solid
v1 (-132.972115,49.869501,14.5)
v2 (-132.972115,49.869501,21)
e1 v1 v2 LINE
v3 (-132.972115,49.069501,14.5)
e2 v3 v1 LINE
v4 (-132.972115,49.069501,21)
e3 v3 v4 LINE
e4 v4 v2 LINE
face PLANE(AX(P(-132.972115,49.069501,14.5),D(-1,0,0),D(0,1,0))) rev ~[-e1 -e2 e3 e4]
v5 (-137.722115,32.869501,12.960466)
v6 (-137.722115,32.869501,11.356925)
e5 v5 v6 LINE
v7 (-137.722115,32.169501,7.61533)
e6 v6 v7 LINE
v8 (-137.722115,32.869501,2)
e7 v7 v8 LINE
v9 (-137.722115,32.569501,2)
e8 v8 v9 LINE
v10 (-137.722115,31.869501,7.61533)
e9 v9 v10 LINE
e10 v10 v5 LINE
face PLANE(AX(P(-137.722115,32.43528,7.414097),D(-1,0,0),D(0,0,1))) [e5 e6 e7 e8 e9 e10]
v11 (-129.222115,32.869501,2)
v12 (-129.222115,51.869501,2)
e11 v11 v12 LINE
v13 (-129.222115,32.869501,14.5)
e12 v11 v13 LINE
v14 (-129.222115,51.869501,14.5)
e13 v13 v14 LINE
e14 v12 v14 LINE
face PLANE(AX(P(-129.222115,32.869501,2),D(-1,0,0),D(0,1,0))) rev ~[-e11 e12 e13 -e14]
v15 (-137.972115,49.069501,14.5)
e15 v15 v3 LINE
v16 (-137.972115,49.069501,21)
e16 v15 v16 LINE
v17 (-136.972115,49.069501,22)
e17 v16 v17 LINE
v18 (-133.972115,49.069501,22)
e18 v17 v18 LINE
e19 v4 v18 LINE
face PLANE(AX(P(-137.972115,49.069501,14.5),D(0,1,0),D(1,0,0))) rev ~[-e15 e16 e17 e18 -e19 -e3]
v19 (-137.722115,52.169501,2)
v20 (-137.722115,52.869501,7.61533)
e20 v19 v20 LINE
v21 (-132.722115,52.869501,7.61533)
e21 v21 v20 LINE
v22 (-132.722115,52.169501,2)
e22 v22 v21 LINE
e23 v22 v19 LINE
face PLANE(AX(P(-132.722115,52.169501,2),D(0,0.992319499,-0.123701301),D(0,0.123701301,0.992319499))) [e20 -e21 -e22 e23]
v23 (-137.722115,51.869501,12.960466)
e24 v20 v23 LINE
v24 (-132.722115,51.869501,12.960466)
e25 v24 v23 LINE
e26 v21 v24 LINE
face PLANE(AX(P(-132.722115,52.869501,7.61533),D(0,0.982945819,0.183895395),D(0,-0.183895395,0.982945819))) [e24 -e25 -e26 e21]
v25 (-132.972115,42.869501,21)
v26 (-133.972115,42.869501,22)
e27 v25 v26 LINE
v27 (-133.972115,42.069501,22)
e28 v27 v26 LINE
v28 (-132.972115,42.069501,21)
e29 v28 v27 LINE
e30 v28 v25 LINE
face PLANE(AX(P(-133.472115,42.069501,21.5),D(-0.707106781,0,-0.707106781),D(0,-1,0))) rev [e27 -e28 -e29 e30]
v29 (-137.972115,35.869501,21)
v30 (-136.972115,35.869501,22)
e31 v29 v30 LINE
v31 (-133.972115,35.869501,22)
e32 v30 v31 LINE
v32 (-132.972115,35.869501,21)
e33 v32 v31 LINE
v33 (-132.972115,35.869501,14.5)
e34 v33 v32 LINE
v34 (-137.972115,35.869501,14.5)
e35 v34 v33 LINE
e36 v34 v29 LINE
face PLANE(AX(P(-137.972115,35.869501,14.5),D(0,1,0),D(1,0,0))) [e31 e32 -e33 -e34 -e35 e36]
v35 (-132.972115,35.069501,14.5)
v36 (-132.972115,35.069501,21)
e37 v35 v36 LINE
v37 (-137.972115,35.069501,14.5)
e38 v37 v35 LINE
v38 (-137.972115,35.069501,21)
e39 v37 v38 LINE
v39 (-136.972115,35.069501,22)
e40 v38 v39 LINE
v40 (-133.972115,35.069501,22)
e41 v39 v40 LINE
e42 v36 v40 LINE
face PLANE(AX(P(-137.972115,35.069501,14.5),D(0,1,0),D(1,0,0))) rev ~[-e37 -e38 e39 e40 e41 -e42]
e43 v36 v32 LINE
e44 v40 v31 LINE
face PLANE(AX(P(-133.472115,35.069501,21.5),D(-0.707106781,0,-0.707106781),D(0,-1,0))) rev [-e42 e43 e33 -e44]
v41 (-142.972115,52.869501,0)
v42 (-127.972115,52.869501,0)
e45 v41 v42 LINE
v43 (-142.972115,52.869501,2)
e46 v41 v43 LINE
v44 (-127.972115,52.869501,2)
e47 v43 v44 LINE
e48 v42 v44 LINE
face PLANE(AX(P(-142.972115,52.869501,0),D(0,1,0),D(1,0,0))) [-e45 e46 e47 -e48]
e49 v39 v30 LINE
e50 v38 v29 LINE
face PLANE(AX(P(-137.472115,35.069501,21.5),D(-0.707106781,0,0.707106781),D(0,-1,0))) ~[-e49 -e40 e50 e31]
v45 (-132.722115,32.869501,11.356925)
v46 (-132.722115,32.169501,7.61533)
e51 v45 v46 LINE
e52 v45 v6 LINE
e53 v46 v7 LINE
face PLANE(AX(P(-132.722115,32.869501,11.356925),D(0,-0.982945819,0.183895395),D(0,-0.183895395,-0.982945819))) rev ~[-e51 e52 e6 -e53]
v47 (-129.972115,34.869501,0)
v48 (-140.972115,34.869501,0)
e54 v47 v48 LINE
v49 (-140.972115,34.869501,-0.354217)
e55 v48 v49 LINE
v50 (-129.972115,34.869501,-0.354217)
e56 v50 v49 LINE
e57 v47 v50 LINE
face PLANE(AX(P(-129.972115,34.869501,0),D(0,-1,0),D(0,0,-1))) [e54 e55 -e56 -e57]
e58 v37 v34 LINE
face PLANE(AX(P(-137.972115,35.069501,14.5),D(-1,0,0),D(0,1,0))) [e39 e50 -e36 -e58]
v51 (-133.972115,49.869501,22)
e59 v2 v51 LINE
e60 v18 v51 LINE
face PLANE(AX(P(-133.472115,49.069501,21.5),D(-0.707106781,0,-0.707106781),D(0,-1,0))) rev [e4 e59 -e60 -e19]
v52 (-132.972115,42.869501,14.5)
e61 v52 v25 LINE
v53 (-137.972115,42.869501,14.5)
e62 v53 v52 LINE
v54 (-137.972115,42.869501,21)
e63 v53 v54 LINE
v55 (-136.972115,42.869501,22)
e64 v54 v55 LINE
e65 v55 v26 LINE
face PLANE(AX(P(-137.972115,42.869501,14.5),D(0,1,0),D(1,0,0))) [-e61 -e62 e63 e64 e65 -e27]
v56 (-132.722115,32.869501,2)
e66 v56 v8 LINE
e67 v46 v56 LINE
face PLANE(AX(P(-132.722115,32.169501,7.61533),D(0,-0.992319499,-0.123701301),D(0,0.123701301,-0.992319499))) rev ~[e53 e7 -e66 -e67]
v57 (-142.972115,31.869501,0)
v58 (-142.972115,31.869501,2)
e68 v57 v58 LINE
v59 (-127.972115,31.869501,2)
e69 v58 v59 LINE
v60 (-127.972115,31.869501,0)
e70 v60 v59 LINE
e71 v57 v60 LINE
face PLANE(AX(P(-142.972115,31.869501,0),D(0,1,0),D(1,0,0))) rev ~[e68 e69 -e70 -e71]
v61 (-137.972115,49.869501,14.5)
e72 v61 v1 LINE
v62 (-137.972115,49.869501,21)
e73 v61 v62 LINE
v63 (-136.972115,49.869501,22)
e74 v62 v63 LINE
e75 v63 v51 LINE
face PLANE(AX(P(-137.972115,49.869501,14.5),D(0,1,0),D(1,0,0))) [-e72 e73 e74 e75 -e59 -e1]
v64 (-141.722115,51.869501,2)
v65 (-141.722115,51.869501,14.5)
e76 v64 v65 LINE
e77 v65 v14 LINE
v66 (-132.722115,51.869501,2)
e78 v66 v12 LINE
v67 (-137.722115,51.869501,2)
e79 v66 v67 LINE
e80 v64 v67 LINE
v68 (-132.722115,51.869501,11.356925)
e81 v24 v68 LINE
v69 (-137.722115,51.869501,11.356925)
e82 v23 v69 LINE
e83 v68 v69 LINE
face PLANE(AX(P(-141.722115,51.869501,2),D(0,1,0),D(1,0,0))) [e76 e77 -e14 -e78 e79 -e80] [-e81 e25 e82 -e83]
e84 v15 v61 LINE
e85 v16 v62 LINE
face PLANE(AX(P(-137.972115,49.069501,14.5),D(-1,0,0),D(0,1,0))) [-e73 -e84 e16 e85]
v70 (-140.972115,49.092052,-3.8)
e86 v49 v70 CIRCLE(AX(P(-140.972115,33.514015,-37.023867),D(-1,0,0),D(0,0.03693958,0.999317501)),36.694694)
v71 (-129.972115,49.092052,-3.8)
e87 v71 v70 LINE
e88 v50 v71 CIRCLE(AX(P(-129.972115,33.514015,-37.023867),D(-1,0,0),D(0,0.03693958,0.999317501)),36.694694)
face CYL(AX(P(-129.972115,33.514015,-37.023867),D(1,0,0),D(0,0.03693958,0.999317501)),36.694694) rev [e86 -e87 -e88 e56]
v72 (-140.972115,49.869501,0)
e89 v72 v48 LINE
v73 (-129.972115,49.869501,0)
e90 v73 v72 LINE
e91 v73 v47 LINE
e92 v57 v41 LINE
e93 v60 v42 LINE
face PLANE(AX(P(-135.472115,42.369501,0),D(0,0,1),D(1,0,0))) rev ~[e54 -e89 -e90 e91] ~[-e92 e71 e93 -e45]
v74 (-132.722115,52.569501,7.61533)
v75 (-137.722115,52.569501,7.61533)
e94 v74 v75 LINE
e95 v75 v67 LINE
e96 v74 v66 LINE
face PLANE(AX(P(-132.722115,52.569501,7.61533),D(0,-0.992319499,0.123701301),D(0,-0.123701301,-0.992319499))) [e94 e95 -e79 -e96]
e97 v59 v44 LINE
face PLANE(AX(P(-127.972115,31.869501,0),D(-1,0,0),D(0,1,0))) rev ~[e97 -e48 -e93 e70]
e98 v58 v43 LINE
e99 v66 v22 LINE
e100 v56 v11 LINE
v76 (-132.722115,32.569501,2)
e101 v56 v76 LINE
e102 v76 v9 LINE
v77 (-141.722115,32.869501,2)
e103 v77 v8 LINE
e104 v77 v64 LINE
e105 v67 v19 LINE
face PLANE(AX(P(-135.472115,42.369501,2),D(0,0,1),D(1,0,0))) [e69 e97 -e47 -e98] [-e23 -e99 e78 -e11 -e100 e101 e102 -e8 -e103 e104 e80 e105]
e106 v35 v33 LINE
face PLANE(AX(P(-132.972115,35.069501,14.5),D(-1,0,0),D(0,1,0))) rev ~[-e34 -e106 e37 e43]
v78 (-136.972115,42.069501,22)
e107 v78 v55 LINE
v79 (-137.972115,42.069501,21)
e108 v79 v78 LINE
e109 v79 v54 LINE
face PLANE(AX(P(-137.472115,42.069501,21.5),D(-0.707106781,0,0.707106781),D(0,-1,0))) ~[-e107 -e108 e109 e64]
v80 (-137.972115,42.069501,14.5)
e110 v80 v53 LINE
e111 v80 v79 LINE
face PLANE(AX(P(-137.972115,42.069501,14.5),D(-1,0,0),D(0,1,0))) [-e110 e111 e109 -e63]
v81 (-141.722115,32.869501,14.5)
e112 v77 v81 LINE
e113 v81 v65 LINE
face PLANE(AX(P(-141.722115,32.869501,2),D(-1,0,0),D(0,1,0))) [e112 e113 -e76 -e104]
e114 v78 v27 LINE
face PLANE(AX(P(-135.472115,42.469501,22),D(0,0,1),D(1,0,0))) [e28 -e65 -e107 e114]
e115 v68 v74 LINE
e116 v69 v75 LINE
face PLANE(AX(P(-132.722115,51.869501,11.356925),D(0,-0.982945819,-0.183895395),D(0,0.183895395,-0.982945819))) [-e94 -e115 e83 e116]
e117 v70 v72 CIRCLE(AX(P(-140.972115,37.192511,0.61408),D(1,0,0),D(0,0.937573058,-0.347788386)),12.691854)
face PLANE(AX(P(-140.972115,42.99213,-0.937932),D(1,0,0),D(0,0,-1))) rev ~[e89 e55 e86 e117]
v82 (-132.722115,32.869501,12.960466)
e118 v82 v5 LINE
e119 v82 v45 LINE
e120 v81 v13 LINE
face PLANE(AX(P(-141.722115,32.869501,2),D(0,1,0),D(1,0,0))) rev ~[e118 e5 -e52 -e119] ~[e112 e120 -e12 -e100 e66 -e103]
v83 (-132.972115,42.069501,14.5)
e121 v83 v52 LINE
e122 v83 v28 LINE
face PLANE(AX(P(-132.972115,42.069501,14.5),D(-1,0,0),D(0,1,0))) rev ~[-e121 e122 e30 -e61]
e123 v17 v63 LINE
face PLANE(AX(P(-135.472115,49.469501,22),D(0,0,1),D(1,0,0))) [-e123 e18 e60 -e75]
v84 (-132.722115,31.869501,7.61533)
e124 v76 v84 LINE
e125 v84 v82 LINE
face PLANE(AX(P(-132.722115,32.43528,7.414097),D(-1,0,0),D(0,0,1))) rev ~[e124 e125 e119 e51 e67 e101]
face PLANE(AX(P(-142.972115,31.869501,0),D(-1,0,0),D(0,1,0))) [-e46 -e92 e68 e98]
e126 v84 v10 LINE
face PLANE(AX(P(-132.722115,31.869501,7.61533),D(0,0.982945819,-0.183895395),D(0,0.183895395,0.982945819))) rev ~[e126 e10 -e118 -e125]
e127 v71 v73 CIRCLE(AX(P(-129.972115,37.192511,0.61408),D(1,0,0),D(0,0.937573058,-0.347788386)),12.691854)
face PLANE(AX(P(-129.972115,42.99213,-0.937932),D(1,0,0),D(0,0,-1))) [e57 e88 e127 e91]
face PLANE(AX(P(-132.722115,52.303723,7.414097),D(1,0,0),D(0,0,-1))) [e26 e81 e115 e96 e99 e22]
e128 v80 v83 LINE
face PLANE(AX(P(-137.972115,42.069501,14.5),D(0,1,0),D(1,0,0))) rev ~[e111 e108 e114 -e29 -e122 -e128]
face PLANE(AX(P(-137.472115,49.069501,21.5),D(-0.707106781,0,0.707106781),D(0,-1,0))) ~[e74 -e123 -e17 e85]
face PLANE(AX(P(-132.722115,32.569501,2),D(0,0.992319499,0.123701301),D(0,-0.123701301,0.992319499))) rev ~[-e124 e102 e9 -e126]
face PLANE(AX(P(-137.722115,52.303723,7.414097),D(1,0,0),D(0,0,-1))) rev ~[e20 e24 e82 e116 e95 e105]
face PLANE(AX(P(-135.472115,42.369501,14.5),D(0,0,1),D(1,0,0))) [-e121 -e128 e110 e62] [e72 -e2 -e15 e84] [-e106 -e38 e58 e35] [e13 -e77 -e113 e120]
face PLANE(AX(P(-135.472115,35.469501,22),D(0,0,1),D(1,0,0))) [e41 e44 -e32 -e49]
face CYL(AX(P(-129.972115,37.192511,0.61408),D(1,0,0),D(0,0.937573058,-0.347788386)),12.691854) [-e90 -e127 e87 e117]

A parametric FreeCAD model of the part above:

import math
import FreeCAD as App
import Part
import Sketcher

V = App.Vector
Q = App.Units.Quantity


def edges_at(feature, points):
    """Names of the edges that pass closest to the given points."""
    edges = feature.Shape.Edges
    near = lambda p: min(range(len(edges)), key=lambda i: edges[i].distToShape(Part.Vertex(*p))[0])
    return sorted({f"Edge{near(p) + 1}" for p in points})


def add_polygon(sketch, points):
    """Adds a closed chain of lines whose ends are joined by coincident constraints."""
    first, n = sketch.GeometryCount, len(points)
    for a, b in zip(points, points[1:] + points[:1]):
        sketch.addGeometry(Part.LineSegment(App.Vector(*a, 0), App.Vector(*b, 0)), False)
    for i in range(n):
        sketch.addConstraint(Sketcher.Constraint("Coincident", first + i, 2, first + (i + 1) % n, 1))

doc = App.newDocument("Part")
body = doc.addObject("PartDesign::Body", "Body")

sketch1 = body.newObject("Sketcher::SketchObject", "Sketch")
sketch1.AttachmentSupport = (doc.getObject("XY_Plane"), [""])
sketch1.MapMode = "FlatFace"
add_polygon(sketch1, [(-142.972115, 52.869501), (-142.972115, 31.869501), (-127.972115, 31.869501), (-127.972115, 52.869501)])
sketch1.addConstraint(Sketcher.Constraint("Vertical", 0))
sketch1.addConstraint(Sketcher.Constraint("Horizontal", 1))
sketch1.addConstraint(Sketcher.Constraint("Vertical", 2))
sketch1.addConstraint(Sketcher.Constraint("Horizontal", 3))
sketch1.addConstraint(Sketcher.Constraint("DistanceX", 1, 1, 1, 2, Q("15 mm")))
sketch1.addConstraint(Sketcher.Constraint("DistanceY", 0, 2, 0, 1, Q("21 mm")))
sketch1.addConstraint(Sketcher.Constraint("DistanceY", -1, 1, 0, 2, Q("31.869501 mm")))
sketch1.addConstraint(Sketcher.Constraint("DistanceX", 0, 2, -1, 1, Q("142.972115 mm")))
pad1 = body.newObject("PartDesign::Pad", "Pad")
pad1.Profile = sketch1
pad1.Length = 2

sketch2 = body.newObject("Sketcher::SketchObject", "Sketch001")
sketch2.AttachmentSupport = (doc.getObject("XY_Plane"), [""])
sketch2.MapMode = "FlatFace"
sketch2.AttachmentOffset = App.Placement(V(0, 0, 2), App.Rotation())
add_polygon(sketch2, [(-141.722115, 51.869501), (-141.722115, 32.869501), (-129.222115, 32.869501), (-129.222115, 51.869501)])
sketch2.addConstraint(Sketcher.Constraint("Vertical", 0))
sketch2.addConstraint(Sketcher.Constraint("Horizontal", 1))
sketch2.addConstraint(Sketcher.Constraint("Vertical", 2))
sketch2.addConstraint(Sketcher.Constraint("Horizontal", 3))
sketch2.addConstraint(Sketcher.Constraint("DistanceY", 0, 2, 0, 1, Q("19 mm")))
sketch2.addConstraint(Sketcher.Constraint("DistanceX", 1, 1, 1, 2, Q("12.5 mm")))
sketch2.addConstraint(Sketcher.Constraint("DistanceY", -1, 1, 0, 2, Q("32.869501 mm")))
sketch2.addConstraint(Sketcher.Constraint("DistanceX", 0, 2, -1, 1, Q("141.722115 mm")))
pad2 = body.newObject("PartDesign::Pad", "Pad001")
pad2.Profile = sketch2
pad2.Length = 12.5

sketch3 = body.newObject("Sketcher::SketchObject", "Sketch002")
sketch3.AttachmentSupport = (doc.getObject("XY_Plane"), [""])
sketch3.MapMode = "FlatFace"
sketch3.AttachmentOffset = App.Placement(V(0, 0, 14.5), App.Rotation())
add_polygon(sketch3, [(-137.972115, 49.869501), (-137.972115, 49.069501), (-132.972115, 49.069501), (-132.972115, 49.869501)])
add_polygon(sketch3, [(-137.972115, 42.869501), (-137.972115, 42.069501), (-132.972115, 42.069501), (-132.972115, 42.869501)])
add_polygon(sketch3, [(-137.972115, 35.869501), (-137.972115, 35.069501), (-132.972115, 35.069501), (-132.972115, 35.869501)])
sketch3.addConstraint(Sketcher.Constraint("Vertical", 0))
sketch3.addConstraint(Sketcher.Constraint("Horizontal", 1))
sketch3.addConstraint(Sketcher.Constraint("Vertical", 2))
sketch3.addConstraint(Sketcher.Constraint("Horizontal", 3))
sketch3.addConstraint(Sketcher.Constraint("Vertical", 4))
sketch3.addConstraint(Sketcher.Constraint("Horizontal", 5))
sketch3.addConstraint(Sketcher.Constraint("Vertical", 6))
sketch3.addConstraint(Sketcher.Constraint("Horizontal", 7))
sketch3.addConstraint(Sketcher.Constraint("Vertical", 8))
sketch3.addConstraint(Sketcher.Constraint("Horizontal", 9))
sketch3.addConstraint(Sketcher.Constraint("Vertical", 10))
sketch3.addConstraint(Sketcher.Constraint("Horizontal", 11))
sketch3.addConstraint(Sketcher.Constraint("Vertical", 3, 2, 4, 2))
sketch3.addConstraint(Sketcher.Constraint("Vertical", 2, 2, 5, 2))
sketch3.addConstraint(Sketcher.Constraint("Vertical", 7, 2, 8, 2))
sketch3.addConstraint(Sketcher.Constraint("Vertical", 6, 2, 9, 2))
sketch3.addConstraint(Sketcher.Constraint("Equal", 2, 4))
sketch3.addConstraint(Sketcher.Constraint("Equal", 6, 8))
sketch3.addConstraint(Sketcher.Constraint("DistanceX", 1, 1, 1, 2, Q("5 mm")))
sketch3.addConstraint(Sketcher.Constraint("DistanceY", 0, 2, 0, 1, Q("0.8 mm")))
sketch3.addConstraint(Sketcher.Constraint("DistanceY", 4, 2, 0, 2, Q("7 mm")))
sketch3.addConstraint(Sketcher.Constraint("DistanceY", 8, 2, 4, 2, Q("7 mm")))
sketch3.addConstraint(Sketcher.Constraint("DistanceY", -1, 1, 0, 2, Q("49.069501 mm")))
sketch3.addConstraint(Sketcher.Constraint("DistanceX", 0, 2, -1, 1, Q("137.972115 mm")))
pad3 = body.newObject("PartDesign::Pad", "Pad002")
pad3.Profile = sketch3
pad3.Length = 7.5
doc.recompute()

chamfer = body.newObject("PartDesign::Chamfer", "Chamfer")
chamfer.Base = (pad3, edges_at(pad3, [
    (-132.972, 49.47, 22),
    (-137.972, 49.47, 22),
    (-132.972, 42.47, 22),
    (-137.972, 42.47, 22),
    (-132.972, 35.47, 22),
    (-137.972, 35.47, 22),
]))
chamfer.Size = 1

sketch4 = body.newObject("Sketcher::SketchObject", "Sketch003")
sketch4.AttachmentSupport = (doc.getObject("YZ_Plane"), [""])
sketch4.MapMode = "FlatFace"
sketch4.AttachmentOffset = App.Placement(V(0, 0, -129.972115), App.Rotation())
sketch4.addGeometry(Part.LineSegment(V(49.869501, 0, 0), V(34.869501, 0, 0)), False)
sketch4.addGeometry(Part.LineSegment(V(34.869501, 0, 0), V(34.869501, -0.354217, 0)), False)
sketch4.addGeometry(Part.ArcOfCircle(Part.Circle(V(33.514015, -37.023867, 0), V(0, 0, 1), 36.694694), math.radians(64.879015), math.radians(87.883036)), False)
sketch4.addGeometry(Part.ArcOfCircle(Part.Circle(V(37.192511, 0.61408, 0), V(0, 0, 1), 12.691854), math.radians(-20.352102), math.radians(-2.773268)), False)
sketch4.addConstraint(Sketcher.Constraint("Coincident", 0, 2, 1, 1))
sketch4.addConstraint(Sketcher.Constraint("Coincident", 1, 2, 2, 2))
sketch4.addConstraint(Sketcher.Constraint("Coincident", 2, 1, 3, 1))
sketch4.addConstraint(Sketcher.Constraint("Coincident", 3, 2, 0, 1))
sketch4.addConstraint(Sketcher.Constraint("Horizontal", 0))
sketch4.addConstraint(Sketcher.Constraint("Vertical", 1))
sketch4.addConstraint(Sketcher.Constraint("PointOnObject", 0, 2, -1))
sketch4.addConstraint(Sketcher.Constraint("DistanceX", 0, 2, 0, 1, Q("15 mm")))
sketch4.addConstraint(Sketcher.Constraint("DistanceY", 2, 1, -1, 1, Q("3.8 mm")))
sketch4.addConstraint(Sketcher.Constraint("Radius", 2, Q("36.694694 mm")))
sketch4.addConstraint(Sketcher.Constraint("Radius", 3, Q("12.691854 mm")))
sketch4.addConstraint(Sketcher.Constraint("DistanceX", -1, 1, 0, 2, Q("34.869501 mm")))
sketch4.addConstraint(Sketcher.Constraint("DistanceY", 1, 2, 1, 1, Q("0.354217 mm")))
sketch4.addConstraint(Sketcher.Constraint("DistanceX", -1, 1, 3, 3, Q("37.192511 mm")))
pad4 = body.newObject("PartDesign::Pad", "Pad003")
pad4.Profile = sketch4
pad4.Length = 11
pad4.Reversed = True

sketch5 = body.newObject("Sketcher::SketchObject", "Sketch004")
sketch5.AttachmentSupport = (doc.getObject("YZ_Plane"), [""])
sketch5.MapMode = "FlatFace"
sketch5.AttachmentOffset = App.Placement(V(0, 0, -132.722115), App.Rotation())
add_polygon(sketch5, [(51.869501, 2), (52.169501, 2), (52.869501, 7.61533), (51.869501, 12.960466), (51.869501, 11.356925), (52.569501, 7.61533)])
add_polygon(sketch5, [(32.869501, 11.356925), (32.869501, 12.960466), (31.869501, 7.61533), (32.569501, 2), (32.869501, 2), (32.169501, 7.61533)])
sketch5.addConstraint(Sketcher.Constraint("Horizontal", 0))
sketch5.addConstraint(Sketcher.Constraint("Vertical", 3))
sketch5.addConstraint(Sketcher.Constraint("Vertical", 6))
sketch5.addConstraint(Sketcher.Constraint("Horizontal", 9))
sketch5.addConstraint(Sketcher.Constraint("Parallel", 2, 4))
sketch5.addConstraint(Sketcher.Constraint("Parallel", 1, 5))
sketch5.addConstraint(Sketcher.Constraint("Parallel", 8, 10))
sketch5.addConstraint(Sketcher.Constraint("Parallel", 7, 11))
sketch5.addConstraint(Sketcher.Constraint("Horizontal", 1, 2, 4, 2))
sketch5.addConstraint(Sketcher.Constraint("Horizontal", 2, 2, 6, 2))
sketch5.addConstraint(Sketcher.Constraint("Horizontal", 4, 2, 7, 2))
sketch5.addConstraint(Sketcher.Constraint("Horizontal", 5, 2, 8, 2))
sketch5.addConstraint(Sketcher.Constraint("Horizontal", 7, 2, 10, 2))
sketch5.addConstraint(Sketcher.Constraint("Horizontal", 3, 2, 11, 2))
sketch5.addConstraint(Sketcher.Constraint("Vertical", 3, 2, 5, 2))
sketch5.addConstraint(Sketcher.Constraint("Vertical", 6, 2, 9, 2))
sketch5.addConstraint(Sketcher.Constraint("Equal", 0, 9))
sketch5.addConstraint(Sketcher.Constraint("DistanceX", 0, 1, 0, 2, Q("0.3 mm")))
sketch5.addConstraint(Sketcher.Constraint("DistanceY", -1, 1, 0, 2, Q("2 mm")))
sketch5.addConstraint(Sketcher.Constraint("DistanceX", 2, 2, 1, 2, Q("1 mm")))
sketch5.addConstraint(Sketcher.Constraint("DistanceX", 6, 2, 2, 2, Q("19 mm")))
sketch5.addConstraint(Sketcher.Constraint("DistanceY", 3, 2, 3, 1, Q("1.603541 mm")))
sketch5.addConstraint(Sketcher.Constraint("DistanceX", -1, 1, 0, 2, Q("52.169501 mm")))
sketch5.addConstraint(Sketcher.Constraint("DistanceY", -1, 1, 1, 2, Q("7.61533 mm")))
pad5 = body.newObject("PartDesign::Pad", "Pad004")
pad5.Profile = sketch5
pad5.Length = 5
pad5.Reversed = True

doc.recompute()
